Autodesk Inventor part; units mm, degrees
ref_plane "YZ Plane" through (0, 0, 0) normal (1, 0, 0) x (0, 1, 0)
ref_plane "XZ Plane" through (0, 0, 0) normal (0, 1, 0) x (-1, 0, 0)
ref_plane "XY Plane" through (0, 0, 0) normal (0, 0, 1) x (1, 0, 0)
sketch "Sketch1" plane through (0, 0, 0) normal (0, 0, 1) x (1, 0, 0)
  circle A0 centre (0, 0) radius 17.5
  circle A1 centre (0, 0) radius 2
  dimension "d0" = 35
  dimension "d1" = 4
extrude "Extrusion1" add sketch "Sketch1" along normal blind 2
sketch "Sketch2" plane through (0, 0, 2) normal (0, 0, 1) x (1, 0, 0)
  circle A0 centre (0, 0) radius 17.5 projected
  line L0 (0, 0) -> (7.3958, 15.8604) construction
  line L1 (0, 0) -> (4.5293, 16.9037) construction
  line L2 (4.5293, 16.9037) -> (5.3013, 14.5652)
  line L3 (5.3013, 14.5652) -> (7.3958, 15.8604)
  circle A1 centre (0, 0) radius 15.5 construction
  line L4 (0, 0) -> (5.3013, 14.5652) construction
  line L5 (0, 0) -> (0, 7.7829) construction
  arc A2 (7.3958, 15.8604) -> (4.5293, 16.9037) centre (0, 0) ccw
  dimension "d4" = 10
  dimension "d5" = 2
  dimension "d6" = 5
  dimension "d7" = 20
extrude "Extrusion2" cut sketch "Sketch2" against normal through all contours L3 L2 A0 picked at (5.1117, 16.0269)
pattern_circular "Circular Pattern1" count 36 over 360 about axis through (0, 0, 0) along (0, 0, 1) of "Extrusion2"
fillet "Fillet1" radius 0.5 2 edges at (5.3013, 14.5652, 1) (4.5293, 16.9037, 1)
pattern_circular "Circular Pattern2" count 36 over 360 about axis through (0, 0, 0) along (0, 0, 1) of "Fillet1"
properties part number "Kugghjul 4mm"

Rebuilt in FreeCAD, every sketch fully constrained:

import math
import FreeCAD as App
import Part
import Sketcher

V = App.Vector
Q = App.Units.Quantity


def edges_at(feature, points):
    """Names of the edges that pass closest to the given points."""
    edges = feature.Shape.Edges
    near = lambda p: min(range(len(edges)), key=lambda i: edges[i].distToShape(Part.Vertex(*p))[0])
    return sorted({f"Edge{near(p) + 1}" for p in points})

doc = App.newDocument("Part")
body = doc.addObject("PartDesign::Body", "Body")

# Sketch on XY plane
sketch1 = body.newObject("Sketcher::SketchObject", "Sketch")
sketch1.AttachmentSupport = (doc.getObject("XY_Plane"), [""])
sketch1.MapMode = "FlatFace"
sketch1.addGeometry([
    Part.Circle(V(0, 0, 0), V(0, 0, 1), 17.5),
    Part.Circle(V(0, 0, 0), V(0, 0, 1), 2),
], False)
sketch1.addConstraint([
    Sketcher.Constraint("Coincident", 0, 3, -1, 1),
    Sketcher.Constraint("Coincident", 1, 3, -1, 1),
    Sketcher.Constraint("Diameter", 0, 35.0),
    Sketcher.Constraint("Diameter", 1, 4.0),
])
pad1 = body.newObject("PartDesign::Pad", "Pad")
pad1.Profile = sketch1
pad1.Length = 2

# Sketch on XY plane
sketch2 = body.newObject("Sketcher::SketchObject", "Sketch001")
sketch2.AttachmentSupport = (doc.getObject("XY_Plane"), [""])
sketch2.MapMode = "FlatFace"
sketch2.AttachmentOffset = App.Placement(V(0, 0, 2), App.Rotation())
sketch2.addGeometry([
    Part.LineSegment(V(5.3, 14.6, 0), V(7.4, 15.9, 0)),
    Part.ArcOfCircle(Part.Circle(V(0, 0, 0), V(0, 0, 1), 17.5), math.radians(65), math.radians(75)),
    Part.LineSegment(V(4.5, 16.9, 0), V(5.3, 14.6, 0)),
], False)
sketch2.addConstraint([
    Sketcher.Constraint("Coincident", 0, 2, 1, 1),
    Sketcher.Constraint("Coincident", 1, 2, 2, 1),
    Sketcher.Constraint("Coincident", 2, 2, 0, 1),
    Sketcher.Constraint("Coincident", 1, 3, -1, 1),
    Sketcher.Constraint("Equal", 0, 2),
    Sketcher.Constraint("Radius", 1, 17.5),
    Sketcher.Constraint("Angle", 2, Q("-71.7306 deg")),
    Sketcher.Constraint("DistanceX", 1, 2, 2, 2, 0.772),
    Sketcher.Constraint("DistanceX", -1, 1, 0, 2, 7.3958),
])
pocket1 = body.newObject("PartDesign::Pocket", "Pocket")
pocket1.Profile = sketch2
pocket1.Type = "ThroughAll"
doc.recompute()

polarpattern = body.newObject("PartDesign::PolarPattern", "PolarPattern")
polarpattern.Originals = [pocket1]
polarpattern.Axis = (doc.getObject("Z_Axis"), [""])
polarpattern.Angle = 360
polarpattern.Occurrences = 36
body.Tip = polarpattern
doc.recompute()

fillet = body.newObject("PartDesign::Fillet", "Fillet")
fillet.Base = (polarpattern, edges_at(polarpattern, [(5.301, 14.565, 1), (4.529, 16.904, 1)]))
fillet.Radius = 0.5
doc.recompute()

polarpattern2 = body.newObject("PartDesign::PolarPattern", "PolarPattern001")
polarpattern2.Originals = [fillet]
polarpattern2.Axis = (doc.getObject("Z_Axis"), [""])
polarpattern2.Angle = 360
polarpattern2.Occurrences = 36
body.Tip = polarpattern2

doc.recompute()
